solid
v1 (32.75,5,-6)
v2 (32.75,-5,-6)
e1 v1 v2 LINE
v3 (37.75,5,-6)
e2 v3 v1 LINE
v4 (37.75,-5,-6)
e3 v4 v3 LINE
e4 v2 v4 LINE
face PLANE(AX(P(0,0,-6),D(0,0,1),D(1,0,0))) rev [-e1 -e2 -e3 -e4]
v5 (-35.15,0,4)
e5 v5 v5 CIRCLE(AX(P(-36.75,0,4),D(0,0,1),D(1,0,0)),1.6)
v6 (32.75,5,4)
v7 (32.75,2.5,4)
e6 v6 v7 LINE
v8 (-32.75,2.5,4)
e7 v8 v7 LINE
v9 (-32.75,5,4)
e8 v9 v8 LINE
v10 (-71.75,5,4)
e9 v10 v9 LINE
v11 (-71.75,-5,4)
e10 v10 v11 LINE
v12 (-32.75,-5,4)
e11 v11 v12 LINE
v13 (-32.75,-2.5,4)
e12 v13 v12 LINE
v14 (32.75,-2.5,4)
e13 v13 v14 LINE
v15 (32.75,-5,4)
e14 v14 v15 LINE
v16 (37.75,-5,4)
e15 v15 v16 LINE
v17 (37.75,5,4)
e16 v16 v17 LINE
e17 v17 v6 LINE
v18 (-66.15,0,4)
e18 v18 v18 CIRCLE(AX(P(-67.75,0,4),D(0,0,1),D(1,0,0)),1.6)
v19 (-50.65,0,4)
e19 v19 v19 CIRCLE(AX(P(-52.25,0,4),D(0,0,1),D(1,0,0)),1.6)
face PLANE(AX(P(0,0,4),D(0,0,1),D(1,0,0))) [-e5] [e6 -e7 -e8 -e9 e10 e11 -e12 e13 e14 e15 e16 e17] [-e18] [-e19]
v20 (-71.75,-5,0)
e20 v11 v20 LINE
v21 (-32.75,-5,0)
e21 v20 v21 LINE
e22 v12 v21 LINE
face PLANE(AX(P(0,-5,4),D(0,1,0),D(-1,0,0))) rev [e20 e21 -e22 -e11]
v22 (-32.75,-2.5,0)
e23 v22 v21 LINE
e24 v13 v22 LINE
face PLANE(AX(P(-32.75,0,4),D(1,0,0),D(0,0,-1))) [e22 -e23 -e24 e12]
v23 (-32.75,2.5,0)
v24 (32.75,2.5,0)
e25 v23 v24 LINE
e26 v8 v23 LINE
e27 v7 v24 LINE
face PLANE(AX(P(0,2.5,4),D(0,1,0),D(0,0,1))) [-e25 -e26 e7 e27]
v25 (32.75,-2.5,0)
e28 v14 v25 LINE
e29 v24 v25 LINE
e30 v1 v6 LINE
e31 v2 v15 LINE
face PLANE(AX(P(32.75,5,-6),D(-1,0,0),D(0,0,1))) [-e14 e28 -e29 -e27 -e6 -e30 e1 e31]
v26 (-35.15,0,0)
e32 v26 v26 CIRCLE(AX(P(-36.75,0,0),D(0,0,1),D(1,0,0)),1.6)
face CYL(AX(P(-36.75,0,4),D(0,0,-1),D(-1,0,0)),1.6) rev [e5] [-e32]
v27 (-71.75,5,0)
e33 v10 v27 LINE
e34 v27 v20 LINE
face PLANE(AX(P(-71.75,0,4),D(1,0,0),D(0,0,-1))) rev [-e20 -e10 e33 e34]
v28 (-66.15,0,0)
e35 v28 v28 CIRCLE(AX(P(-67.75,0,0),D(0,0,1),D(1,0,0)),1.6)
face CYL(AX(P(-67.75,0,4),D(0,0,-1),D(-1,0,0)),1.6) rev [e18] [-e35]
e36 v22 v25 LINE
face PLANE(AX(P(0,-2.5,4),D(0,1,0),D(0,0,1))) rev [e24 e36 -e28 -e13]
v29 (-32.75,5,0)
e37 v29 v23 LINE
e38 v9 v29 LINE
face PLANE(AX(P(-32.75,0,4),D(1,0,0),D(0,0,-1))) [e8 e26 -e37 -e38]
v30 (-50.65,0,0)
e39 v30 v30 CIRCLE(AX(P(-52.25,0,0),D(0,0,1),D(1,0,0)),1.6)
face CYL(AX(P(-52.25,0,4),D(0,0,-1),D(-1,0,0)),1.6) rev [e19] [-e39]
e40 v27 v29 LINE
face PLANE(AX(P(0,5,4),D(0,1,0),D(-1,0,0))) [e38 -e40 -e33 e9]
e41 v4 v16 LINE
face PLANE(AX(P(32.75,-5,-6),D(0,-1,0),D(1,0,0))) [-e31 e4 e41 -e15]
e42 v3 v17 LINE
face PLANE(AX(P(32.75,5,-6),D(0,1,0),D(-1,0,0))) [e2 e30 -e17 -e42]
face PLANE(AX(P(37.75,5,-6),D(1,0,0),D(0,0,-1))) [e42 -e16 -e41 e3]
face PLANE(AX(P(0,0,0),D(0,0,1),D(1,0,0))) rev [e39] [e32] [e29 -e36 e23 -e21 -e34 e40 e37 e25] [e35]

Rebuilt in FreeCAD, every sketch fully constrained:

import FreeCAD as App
import Part
import Sketcher
from FreeCAD import Vector
Q = App.Units.Quantity

doc = App.newDocument("Part")
body = doc.addObject("PartDesign::Body", "Body")

# Sketch on XY plane
sketch1 = body.newObject("Sketcher::SketchObject", "Sketch")
sketch1.AttachmentSupport = (doc.getObject("XY_Plane"), [""])
sketch1.MapMode = "FlatFace"
sketch1.addGeometry(Part.LineSegment(Vector(-32.75, -5, 0), Vector(-32.75, -2.5, 0)), False)
sketch1.addGeometry(Part.LineSegment(Vector(-32.75, -2.5, 0), Vector(32.75, -2.5, 0)), False)
sketch1.addGeometry(Part.LineSegment(Vector(32.75, -2.5, 0), Vector(32.75, 2.5, 0)), False)
sketch1.addGeometry(Part.LineSegment(Vector(32.75, 2.5, 0), Vector(-32.75, 2.5, 0)), False)
sketch1.addGeometry(Part.LineSegment(Vector(-32.75, 2.5, 0), Vector(-32.75, 5, 0)), False)
sketch1.addGeometry(Part.LineSegment(Vector(-32.75, 5, 0), Vector(-71.75, 5, 0)), False)
sketch1.addGeometry(Part.LineSegment(Vector(-71.75, 5, 0), Vector(-71.75, -5, 0)), False)
sketch1.addGeometry(Part.LineSegment(Vector(-71.75, -5, 0), Vector(-32.75, -5, 0)), False)
sketch1.addGeometry(Part.Circle(Vector(-36.75, 0, 0), Vector(0, 0, 1), 1.6), False)
sketch1.addGeometry(Part.Circle(Vector(-52.25, 0, 0), Vector(0, 0, 1), 1.6), False)
sketch1.addGeometry(Part.Circle(Vector(-67.75, 0, 0), Vector(0, 0, 1), 1.6), False)
sketch1.addConstraint(Sketcher.Constraint("Coincident", 0, 2, 1, 1))
sketch1.addConstraint(Sketcher.Constraint("Coincident", 1, 2, 2, 1))
sketch1.addConstraint(Sketcher.Constraint("Coincident", 2, 2, 3, 1))
sketch1.addConstraint(Sketcher.Constraint("Coincident", 3, 2, 4, 1))
sketch1.addConstraint(Sketcher.Constraint("Coincident", 4, 2, 5, 1))
sketch1.addConstraint(Sketcher.Constraint("Coincident", 5, 2, 6, 1))
sketch1.addConstraint(Sketcher.Constraint("Coincident", 6, 2, 7, 1))
sketch1.addConstraint(Sketcher.Constraint("Coincident", 7, 2, 0, 1))
sketch1.addConstraint(Sketcher.Constraint("Vertical", 0))
sketch1.addConstraint(Sketcher.Constraint("Horizontal", 1))
sketch1.addConstraint(Sketcher.Constraint("Vertical", 2))
sketch1.addConstraint(Sketcher.Constraint("Horizontal", 3))
sketch1.addConstraint(Sketcher.Constraint("Vertical", 4))
sketch1.addConstraint(Sketcher.Constraint("Horizontal", 5))
sketch1.addConstraint(Sketcher.Constraint("Vertical", 6))
sketch1.addConstraint(Sketcher.Constraint("Horizontal", 7))
sketch1.addConstraint(Sketcher.Constraint("Equal", 8, 9))
sketch1.addConstraint(Sketcher.Constraint("Equal", 9, 10))
sketch1.addConstraint(Sketcher.Constraint("Symmetric", 0, 2, 2, 2, -1, 1))
sketch1.addConstraint(Sketcher.Constraint("Symmetric", 4, 2, 7, 2, -1))
sketch1.addConstraint(Sketcher.Constraint("PointOnObject", 8, 3, -1))
sketch1.addConstraint(Sketcher.Constraint("PointOnObject", 9, 3, -1))
sketch1.addConstraint(Sketcher.Constraint("PointOnObject", 10, 3, -1))
sketch1.addConstraint(Sketcher.Constraint("Diameter", 8, Q("3.2 mm")))
sketch1.addConstraint(Sketcher.Constraint("DistanceX", 5, 2, 5, 1, Q("39 mm")))
sketch1.addConstraint(Sketcher.Constraint("DistanceY", 2, 1, 2, 2, Q("5 mm")))
sketch1.addConstraint(Sketcher.Constraint("DistanceY", 6, 2, 6, 1, Q("10 mm")))
sketch1.addConstraint(Sketcher.Constraint("DistanceX", 1, 1, 1, 2, Q("65.5 mm")))
sketch1.addConstraint(Sketcher.Constraint("DistanceX", 10, 3, 8, 3, Q("31 mm")))
sketch1.addConstraint(Sketcher.Constraint("DistanceX", 8, 3, 0, 2, Q("4 mm")))
sketch1.addConstraint(Sketcher.Constraint("DistanceX", 9, 3, 1, 2, Q("85 mm")))
pad1 = body.newObject("PartDesign::Pad", "Pad")
pad1.Profile = sketch1
pad1.Length = 4

# Sketch on XY plane
sketch2 = body.newObject("Sketcher::SketchObject", "Sketch001")
sketch2.AttachmentSupport = (doc.getObject("XY_Plane"), [""])
sketch2.MapMode = "FlatFace"
sketch2.AttachmentOffset = App.Placement(Vector(0, 0, 4), App.Rotation())
sketch2.addGeometry(Part.LineSegment(Vector(32.75, 5, 0), Vector(32.75, -5, 0)), False)
sketch2.addGeometry(Part.LineSegment(Vector(32.75, -5, 0), Vector(37.75, -5, 0)), False)
sketch2.addGeometry(Part.LineSegment(Vector(37.75, -5, 0), Vector(37.75, 5, 0)), False)
sketch2.addGeometry(Part.LineSegment(Vector(37.75, 5, 0), Vector(32.75, 5, 0)), False)
sketch2.addConstraint(Sketcher.Constraint("Coincident", 0, 2, 1, 1))
sketch2.addConstraint(Sketcher.Constraint("Coincident", 1, 2, 2, 1))
sketch2.addConstraint(Sketcher.Constraint("Coincident", 2, 2, 3, 1))
sketch2.addConstraint(Sketcher.Constraint("Coincident", 3, 2, 0, 1))
sketch2.addConstraint(Sketcher.Constraint("Vertical", 0))
sketch2.addConstraint(Sketcher.Constraint("Horizontal", 1))
sketch2.addConstraint(Sketcher.Constraint("Vertical", 2))
sketch2.addConstraint(Sketcher.Constraint("Horizontal", 3))
sketch2.addConstraint(Sketcher.Constraint("DistanceX", 1, 1, 1, 2, Q("5 mm")))
sketch2.addConstraint(Sketcher.Constraint("DistanceY", 0, 2, 0, 1, Q("10 mm")))
sketch2.addConstraint(Sketcher.Constraint("DistanceY", 0, 2, -1, 1, Q("5 mm")))
sketch2.addConstraint(Sketcher.Constraint("DistanceX", -1, 1, 0, 2, Q("32.75 mm")))
pad2 = body.newObject("PartDesign::Pad", "Pad001")
pad2.Profile = sketch2
pad2.Length = 10
pad2.Reversed = True

doc.recompute()
